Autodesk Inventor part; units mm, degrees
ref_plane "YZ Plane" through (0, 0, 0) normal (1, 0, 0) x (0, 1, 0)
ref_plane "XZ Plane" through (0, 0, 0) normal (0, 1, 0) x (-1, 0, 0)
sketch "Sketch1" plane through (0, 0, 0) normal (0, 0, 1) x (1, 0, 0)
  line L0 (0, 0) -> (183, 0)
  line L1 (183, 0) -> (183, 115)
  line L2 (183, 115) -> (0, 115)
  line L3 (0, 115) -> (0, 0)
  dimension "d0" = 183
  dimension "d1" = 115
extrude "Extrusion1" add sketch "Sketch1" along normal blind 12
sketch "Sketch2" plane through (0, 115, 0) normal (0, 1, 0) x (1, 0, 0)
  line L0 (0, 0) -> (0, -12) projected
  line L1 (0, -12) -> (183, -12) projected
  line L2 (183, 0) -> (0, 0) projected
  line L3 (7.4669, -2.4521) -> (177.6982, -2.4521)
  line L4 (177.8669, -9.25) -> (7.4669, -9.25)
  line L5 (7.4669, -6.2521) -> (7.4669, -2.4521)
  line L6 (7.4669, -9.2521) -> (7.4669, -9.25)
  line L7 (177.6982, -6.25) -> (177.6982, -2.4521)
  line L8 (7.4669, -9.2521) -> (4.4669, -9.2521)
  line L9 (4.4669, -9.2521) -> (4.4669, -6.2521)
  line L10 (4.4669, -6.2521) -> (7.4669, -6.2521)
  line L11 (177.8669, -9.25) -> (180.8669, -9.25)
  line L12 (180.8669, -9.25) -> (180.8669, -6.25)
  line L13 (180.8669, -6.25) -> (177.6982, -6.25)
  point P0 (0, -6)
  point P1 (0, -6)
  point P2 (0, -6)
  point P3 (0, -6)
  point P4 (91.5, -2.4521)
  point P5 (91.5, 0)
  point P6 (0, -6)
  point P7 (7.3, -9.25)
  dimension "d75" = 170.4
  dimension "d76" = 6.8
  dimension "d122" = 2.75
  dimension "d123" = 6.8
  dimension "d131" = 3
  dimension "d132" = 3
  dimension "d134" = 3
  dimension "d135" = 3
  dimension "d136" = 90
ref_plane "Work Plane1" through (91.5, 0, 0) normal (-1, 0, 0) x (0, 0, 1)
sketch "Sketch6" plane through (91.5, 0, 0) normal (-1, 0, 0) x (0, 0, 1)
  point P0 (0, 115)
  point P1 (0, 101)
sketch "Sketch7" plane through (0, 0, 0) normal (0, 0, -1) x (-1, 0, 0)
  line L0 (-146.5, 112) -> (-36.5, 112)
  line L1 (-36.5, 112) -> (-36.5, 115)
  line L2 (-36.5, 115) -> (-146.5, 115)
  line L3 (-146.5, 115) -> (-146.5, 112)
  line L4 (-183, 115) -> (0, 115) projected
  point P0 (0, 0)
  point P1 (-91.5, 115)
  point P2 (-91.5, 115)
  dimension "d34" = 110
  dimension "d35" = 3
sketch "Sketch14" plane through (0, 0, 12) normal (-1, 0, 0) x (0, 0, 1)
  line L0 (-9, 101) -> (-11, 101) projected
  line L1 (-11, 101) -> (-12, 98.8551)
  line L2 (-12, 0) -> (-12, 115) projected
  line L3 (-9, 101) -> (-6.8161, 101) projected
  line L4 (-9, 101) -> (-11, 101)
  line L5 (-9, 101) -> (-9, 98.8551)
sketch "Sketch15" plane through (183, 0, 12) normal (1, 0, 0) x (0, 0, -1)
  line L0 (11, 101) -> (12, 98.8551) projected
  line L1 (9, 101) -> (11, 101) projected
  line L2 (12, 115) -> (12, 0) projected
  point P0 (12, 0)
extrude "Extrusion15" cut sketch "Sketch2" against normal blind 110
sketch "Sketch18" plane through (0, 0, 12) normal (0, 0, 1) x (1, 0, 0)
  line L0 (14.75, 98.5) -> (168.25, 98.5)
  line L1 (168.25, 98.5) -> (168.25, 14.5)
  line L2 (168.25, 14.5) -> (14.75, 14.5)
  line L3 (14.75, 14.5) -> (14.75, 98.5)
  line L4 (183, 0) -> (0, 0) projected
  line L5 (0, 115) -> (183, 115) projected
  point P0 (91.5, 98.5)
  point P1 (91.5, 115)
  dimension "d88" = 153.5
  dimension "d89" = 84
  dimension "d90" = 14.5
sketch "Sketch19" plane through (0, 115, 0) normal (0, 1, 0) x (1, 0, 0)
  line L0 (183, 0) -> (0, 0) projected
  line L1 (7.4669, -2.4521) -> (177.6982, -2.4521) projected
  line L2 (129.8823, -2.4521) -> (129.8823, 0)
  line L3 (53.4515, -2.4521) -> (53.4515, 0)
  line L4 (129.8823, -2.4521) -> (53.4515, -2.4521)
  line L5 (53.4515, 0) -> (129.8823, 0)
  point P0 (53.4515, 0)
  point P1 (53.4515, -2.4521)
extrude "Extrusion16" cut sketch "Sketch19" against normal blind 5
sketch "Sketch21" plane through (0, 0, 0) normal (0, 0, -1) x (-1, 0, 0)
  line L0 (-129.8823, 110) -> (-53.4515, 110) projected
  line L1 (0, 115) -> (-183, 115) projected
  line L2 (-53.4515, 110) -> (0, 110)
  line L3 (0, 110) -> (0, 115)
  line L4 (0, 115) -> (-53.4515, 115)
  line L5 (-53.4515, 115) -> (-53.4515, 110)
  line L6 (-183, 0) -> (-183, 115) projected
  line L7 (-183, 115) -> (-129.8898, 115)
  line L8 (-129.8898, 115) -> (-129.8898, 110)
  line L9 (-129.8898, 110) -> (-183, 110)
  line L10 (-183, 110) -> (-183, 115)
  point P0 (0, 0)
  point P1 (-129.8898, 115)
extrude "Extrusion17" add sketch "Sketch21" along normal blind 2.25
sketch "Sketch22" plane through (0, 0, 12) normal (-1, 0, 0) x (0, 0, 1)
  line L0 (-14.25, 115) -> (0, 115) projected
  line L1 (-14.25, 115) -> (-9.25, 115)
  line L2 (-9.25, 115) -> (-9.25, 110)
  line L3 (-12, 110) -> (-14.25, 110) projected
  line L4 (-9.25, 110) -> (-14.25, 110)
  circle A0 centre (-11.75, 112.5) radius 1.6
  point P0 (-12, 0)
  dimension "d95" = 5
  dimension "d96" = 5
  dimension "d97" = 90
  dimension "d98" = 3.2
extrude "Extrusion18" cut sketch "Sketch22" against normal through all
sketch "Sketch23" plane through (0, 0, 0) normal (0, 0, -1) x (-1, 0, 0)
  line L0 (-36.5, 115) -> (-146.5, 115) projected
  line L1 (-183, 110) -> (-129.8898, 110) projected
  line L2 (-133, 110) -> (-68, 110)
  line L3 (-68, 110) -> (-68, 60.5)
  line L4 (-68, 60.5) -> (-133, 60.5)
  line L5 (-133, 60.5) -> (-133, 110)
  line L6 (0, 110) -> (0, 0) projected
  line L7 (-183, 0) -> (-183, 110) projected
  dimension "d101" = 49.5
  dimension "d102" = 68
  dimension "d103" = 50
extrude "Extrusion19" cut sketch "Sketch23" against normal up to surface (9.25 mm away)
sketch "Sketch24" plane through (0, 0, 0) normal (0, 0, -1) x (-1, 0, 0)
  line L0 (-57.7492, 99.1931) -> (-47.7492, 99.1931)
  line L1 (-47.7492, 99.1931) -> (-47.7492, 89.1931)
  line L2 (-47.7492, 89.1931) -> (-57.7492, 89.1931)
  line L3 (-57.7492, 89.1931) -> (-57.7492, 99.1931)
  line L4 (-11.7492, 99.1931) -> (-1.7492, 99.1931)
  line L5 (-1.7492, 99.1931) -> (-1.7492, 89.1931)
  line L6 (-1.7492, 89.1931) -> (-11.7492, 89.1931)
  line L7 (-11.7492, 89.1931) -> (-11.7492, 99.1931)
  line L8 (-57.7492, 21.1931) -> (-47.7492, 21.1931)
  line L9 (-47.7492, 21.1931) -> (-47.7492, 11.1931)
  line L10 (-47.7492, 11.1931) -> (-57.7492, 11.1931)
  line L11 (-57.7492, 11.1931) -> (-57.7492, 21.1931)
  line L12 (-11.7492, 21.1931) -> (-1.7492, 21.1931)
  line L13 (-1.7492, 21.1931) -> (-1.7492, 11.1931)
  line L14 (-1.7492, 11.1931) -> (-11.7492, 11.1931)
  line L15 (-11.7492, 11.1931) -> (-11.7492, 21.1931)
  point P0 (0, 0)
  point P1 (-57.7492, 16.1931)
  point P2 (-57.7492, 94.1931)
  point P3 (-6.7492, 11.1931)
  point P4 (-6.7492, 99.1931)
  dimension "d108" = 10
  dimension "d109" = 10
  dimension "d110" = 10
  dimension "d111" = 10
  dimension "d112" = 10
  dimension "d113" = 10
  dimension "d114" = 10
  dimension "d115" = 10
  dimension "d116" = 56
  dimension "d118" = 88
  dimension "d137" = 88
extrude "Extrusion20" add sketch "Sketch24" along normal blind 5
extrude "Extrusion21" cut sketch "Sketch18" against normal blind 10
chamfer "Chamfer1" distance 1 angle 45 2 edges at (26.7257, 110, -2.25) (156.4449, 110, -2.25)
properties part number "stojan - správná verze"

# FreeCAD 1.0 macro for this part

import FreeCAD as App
import Part
import Sketcher


def edges_at(feature, points):
    """Names of the edges that pass closest to the given points."""
    edges = feature.Shape.Edges
    near = lambda p: min(range(len(edges)), key=lambda i: edges[i].distToShape(Part.Vertex(*p))[0])
    return sorted({f"Edge{near(p) + 1}" for p in points})


def add_polygon(sketch, points):
    """Adds a closed chain of lines whose ends are joined by coincident constraints."""
    first, n = sketch.GeometryCount, len(points)
    for a, b in zip(points, points[1:] + points[:1]):
        sketch.addGeometry(Part.LineSegment(App.Vector(*a, 0), App.Vector(*b, 0)), False)
    for i in range(n):
        sketch.addConstraint(Sketcher.Constraint("Coincident", first + i, 2, first + (i + 1) % n, 1))

doc = App.newDocument("Part")
body = doc.addObject("PartDesign::Body", "Body")

# Sketch on XY plane
sketch1 = body.newObject("Sketcher::SketchObject", "Sketch")
sketch1.AttachmentSupport = (doc.getObject("XY_Plane"), [""])
sketch1.MapMode = "FlatFace"
add_polygon(sketch1, [(0, 115), (0, 0), (183, 0), (183, 115)])  # lines 0-3
sketch1.addConstraint([
    Sketcher.Constraint("Vertical", 0),
    Sketcher.Constraint("Horizontal", 1),
    Sketcher.Constraint("Vertical", 2),
    Sketcher.Constraint("Horizontal", 3),
    Sketcher.Constraint("Coincident", 0, 2, -1, 1),
    Sketcher.Constraint("DistanceX", 1, 1, 1, 2, 183.0),
    Sketcher.Constraint("DistanceY", 0, 2, 0, 1, 115.0),
])
pad1 = body.newObject("PartDesign::Pad", "Pad")
pad1.Profile = sketch1
pad1.Length = 12

# Sketch on XZ plane
sketch2 = body.newObject("Sketcher::SketchObject", "Sketch001")
sketch2.AttachmentSupport = (doc.getObject("XZ_Plane"), [""])
sketch2.MapMode = "FlatFace"
sketch2.AttachmentOffset = App.Placement(App.Vector(0, 0, -115), App.Rotation())
add_polygon(sketch2, [(177.6982, 2.4521), (7.4669, 2.4521), (7.4669, 6.2521), (4.4669, 6.2521), (4.4669, 9.2521), (7.4669, 9.2521), (7.4669, 9.25), (180.8669, 9.25), (180.8669, 6.25), (177.6982, 6.25)])  # lines 0-9
sketch2.addConstraint([
    Sketcher.Constraint("Horizontal", 0),
    Sketcher.Constraint("Vertical", 1),
    Sketcher.Constraint("Horizontal", 2),
    Sketcher.Constraint("Vertical", 3),
    Sketcher.Constraint("Horizontal", 4),
    Sketcher.Constraint("Vertical", 5),
    Sketcher.Constraint("Horizontal", 6),
    Sketcher.Constraint("Vertical", 7),
    Sketcher.Constraint("Horizontal", 8),
    Sketcher.Constraint("Vertical", 9),
    Sketcher.Constraint("Vertical", 1, 2, 4, 2),
    Sketcher.Constraint("Equal", 4, 3),
    Sketcher.Constraint("Equal", 3, 7),
    Sketcher.Constraint("DistanceX", 2, 2, 2, 1, 3.0),
    Sketcher.Constraint("DistanceY", 0, 2, 3, 2, 6.8),
    Sketcher.Constraint("DistanceX", 6, 1, 6, 2, 173.4),
    Sketcher.Constraint("DistanceY", 5, 2, 5, 1, 0.002),
    Sketcher.Constraint("DistanceY", -1, 1, 5, 2, 9.25),
    Sketcher.Constraint("DistanceX", 0, 2, 0, 1, 170.2313),
    Sketcher.Constraint("DistanceX", -1, 1, 0, 2, 7.467),
])
pocket1 = body.newObject("PartDesign::Pocket", "Pocket")
pocket1.Profile = sketch2
pocket1.Length = 110
pocket1.Reversed = True

# Sketch on XZ plane
sketch3 = body.newObject("Sketcher::SketchObject", "Sketch002")
sketch3.AttachmentSupport = (doc.getObject("XZ_Plane"), [""])
sketch3.MapMode = "FlatFace"
sketch3.AttachmentOffset = App.Placement(App.Vector(0, 0, -115), App.Rotation())
add_polygon(sketch3, [(129.9, 2.5), (129.9, 0), (53.5, 0), (53.5, 2.5)])  # lines 0-3
sketch3.addConstraint([
    Sketcher.Constraint("Vertical", 0),
    Sketcher.Constraint("Horizontal", 1),
    Sketcher.Constraint("Vertical", 2),
    Sketcher.Constraint("Horizontal", 3),
    Sketcher.Constraint("PointOnObject", 0, 2, -1),
    Sketcher.Constraint("DistanceY", 0, 2, 0, 1, 2.452),
    Sketcher.Constraint("DistanceX", 1, 2, 1, 1, 76.4308),
    Sketcher.Constraint("DistanceX", -1, 1, 0, 2, 129.8823),
])
pocket2 = body.newObject("PartDesign::Pocket", "Pocket001")
pocket2.Profile = sketch3
pocket2.Length = 5
pocket2.Reversed = True

# Sketch on XY plane
sketch4 = body.newObject("Sketcher::SketchObject", "Sketch003")
sketch4.AttachmentSupport = (doc.getObject("XY_Plane"), [""])
sketch4.MapMode = "FlatFace"
add_polygon(sketch4, [(0, 110), (0, 115), (53, 115), (53, 110)])  # lines 0-3
add_polygon(sketch4, [(130, 110), (130, 115), (183, 115), (183, 110)])  # lines 4-7
sketch4.addConstraint([
    Sketcher.Constraint("Vertical", 0),
    Sketcher.Constraint("Horizontal", 1),
    Sketcher.Constraint("Vertical", 2),
    Sketcher.Constraint("Horizontal", 3),
    Sketcher.Constraint("Vertical", 4),
    Sketcher.Constraint("Horizontal", 5),
    Sketcher.Constraint("Vertical", 6),
    Sketcher.Constraint("Horizontal", 7),
    Sketcher.Constraint("PointOnObject", 0, 2, -2),
    Sketcher.Constraint("Horizontal", 1, 2, 4, 2),
    Sketcher.Constraint("Horizontal", 3, 2, 6, 2),
    Sketcher.Constraint("DistanceY", 0, 1, 0, 2, 5.0),
    Sketcher.Constraint("DistanceY", -1, 1, 0, 2, 115.0),
    Sketcher.Constraint("DistanceX", -1, 1, 5, 2, 183.0),
    Sketcher.Constraint("DistanceX", 1, 1, 1, 2, 53.4515),
    Sketcher.Constraint("DistanceX", 5, 1, 5, 2, 53.1102),
])
pad2 = body.newObject("PartDesign::Pad", "Pad001")
pad2.Profile = sketch4
pad2.Length = 2.25
pad2.Reversed = True

# Sketch on YZ plane
sketch5 = body.newObject("Sketcher::SketchObject", "Sketch004")
sketch5.AttachmentSupport = (doc.getObject("YZ_Plane"), [""])
sketch5.MapMode = "FlatFace"
sketch5.addGeometry(Part.Circle(App.Vector(112.5, 0.2, 0), App.Vector(0, 0, 1), 1.6), False)
sketch5.addConstraint([
    Sketcher.Constraint("Diameter", 0, 3.2),
    Sketcher.Constraint("DistanceX", -1, 1, 0, 3, 112.5),
    Sketcher.Constraint("DistanceY", -1, 1, 0, 3, 0.25),
])
pocket3 = body.newObject("PartDesign::Pocket", "Pocket002")
pocket3.Profile = sketch5
pocket3.Type = "ThroughAll"
pocket3.Reversed = True

# Sketch on XY plane
sketch6 = body.newObject("Sketcher::SketchObject", "Sketch005")
sketch6.AttachmentSupport = (doc.getObject("XY_Plane"), [""])
sketch6.MapMode = "FlatFace"
add_polygon(sketch6, [(68, 110), (133, 110), (133, 60), (68, 60)])  # lines 0-3
sketch6.addConstraint([
    Sketcher.Constraint("Horizontal", 0),
    Sketcher.Constraint("Vertical", 1),
    Sketcher.Constraint("Horizontal", 2),
    Sketcher.Constraint("Vertical", 3),
    Sketcher.Constraint("DistanceY", 1, 2, 1, 1, 49.5),
    Sketcher.Constraint("DistanceX", -1, 1, 2, 2, 68.0),
    Sketcher.Constraint("DistanceX", 0, 1, 0, 2, 65.0),
    Sketcher.Constraint("DistanceY", -1, 1, 0, 2, 110.0),
])
pocket4 = body.newObject("PartDesign::Pocket", "Pocket003")
pocket4.Profile = sketch6
pocket4.Length = 9.25
pocket4.Reversed = True

# Sketch on XY plane
sketch7 = body.newObject("Sketcher::SketchObject", "Sketch006")
sketch7.AttachmentSupport = (doc.getObject("XY_Plane"), [""])
sketch7.MapMode = "FlatFace"
add_polygon(sketch7, [(48, 99), (58, 99), (58, 89), (48, 89)])  # lines 0-3
add_polygon(sketch7, [(2, 99), (12, 99), (12, 89), (2, 89)])  # lines 4-7
add_polygon(sketch7, [(48, 21), (58, 21), (58, 11), (48, 11)])  # lines 8-11
add_polygon(sketch7, [(2, 21), (12, 21), (12, 11), (2, 11)])  # lines 12-15
sketch7.addConstraint([
    Sketcher.Constraint("Horizontal", 0),
    Sketcher.Constraint("Vertical", 1),
    Sketcher.Constraint("Horizontal", 2),
    Sketcher.Constraint("Vertical", 3),
    Sketcher.Constraint("Horizontal", 4),
    Sketcher.Constraint("Vertical", 5),
    Sketcher.Constraint("Horizontal", 6),
    Sketcher.Constraint("Vertical", 7),
    Sketcher.Constraint("Horizontal", 8),
    Sketcher.Constraint("Vertical", 9),
    Sketcher.Constraint("Horizontal", 10),
    Sketcher.Constraint("Vertical", 11),
    Sketcher.Constraint("Horizontal", 12),
    Sketcher.Constraint("Vertical", 13),
    Sketcher.Constraint("Horizontal", 14),
    Sketcher.Constraint("Vertical", 15),
    Sketcher.Constraint("Horizontal", 3, 2, 4, 2),
    Sketcher.Constraint("Horizontal", 2, 2, 5, 2),
    Sketcher.Constraint("Horizontal", 11, 2, 12, 2),
    Sketcher.Constraint("Horizontal", 10, 2, 13, 2),
    Sketcher.Constraint("Vertical", 1, 2, 8, 2),
    Sketcher.Constraint("Vertical", 3, 2, 10, 2),
    Sketcher.Constraint("Vertical", 5, 2, 12, 2),
    Sketcher.Constraint("Vertical", 7, 2, 14, 2),
    Sketcher.Constraint("Equal", 2, 4),
    Sketcher.Constraint("Equal", 14, 1),
    Sketcher.Constraint("Equal", 7, 9),
    Sketcher.Constraint("DistanceX", 0, 1, 0, 2, 10.0),
    Sketcher.Constraint("DistanceX", 6, 2, 1, 2, 56.0),
    Sketcher.Constraint("DistanceY", 9, 2, 0, 2, 88.0),
    Sketcher.Constraint("DistanceY", -1, 1, 0, 2, 99.193),
    Sketcher.Constraint("DistanceX", -1, 1, 0, 2, 57.7492),
])
pad3 = body.newObject("PartDesign::Pad", "Pad002")
pad3.Profile = sketch7
pad3.Length = 5
pad3.Reversed = True

# Sketch on XY plane
sketch8 = body.newObject("Sketcher::SketchObject", "Sketch007")
sketch8.AttachmentSupport = (doc.getObject("XY_Plane"), [""])
sketch8.MapMode = "FlatFace"
sketch8.AttachmentOffset = App.Placement(App.Vector(0, 0, 12), App.Rotation())
add_polygon(sketch8, [(168, 98), (15, 98), (15, 14), (168, 14)])  # lines 0-3
sketch8.addConstraint([
    Sketcher.Constraint("Horizontal", 0),
    Sketcher.Constraint("Vertical", 1),
    Sketcher.Constraint("Horizontal", 2),
    Sketcher.Constraint("Vertical", 3),
    Sketcher.Constraint("DistanceY", 1, 2, 1, 1, 84.0),
    Sketcher.Constraint("DistanceX", 0, 2, 0, 1, 153.5),
    Sketcher.Constraint("DistanceY", -1, 1, 1, 2, 14.5),
    Sketcher.Constraint("DistanceX", -1, 1, 0, 2, 14.75),
])
pocket5 = body.newObject("PartDesign::Pocket", "Pocket004")
pocket5.Profile = sketch8
pocket5.Length = 10
doc.recompute()

chamfer = body.newObject("PartDesign::Chamfer", "Chamfer")
chamfer.Base = (pocket5, edges_at(pocket5, [(26.726, 110, -2.25), (156.445, 110, -2.25)]))
chamfer.Size = 1

doc.recompute()
